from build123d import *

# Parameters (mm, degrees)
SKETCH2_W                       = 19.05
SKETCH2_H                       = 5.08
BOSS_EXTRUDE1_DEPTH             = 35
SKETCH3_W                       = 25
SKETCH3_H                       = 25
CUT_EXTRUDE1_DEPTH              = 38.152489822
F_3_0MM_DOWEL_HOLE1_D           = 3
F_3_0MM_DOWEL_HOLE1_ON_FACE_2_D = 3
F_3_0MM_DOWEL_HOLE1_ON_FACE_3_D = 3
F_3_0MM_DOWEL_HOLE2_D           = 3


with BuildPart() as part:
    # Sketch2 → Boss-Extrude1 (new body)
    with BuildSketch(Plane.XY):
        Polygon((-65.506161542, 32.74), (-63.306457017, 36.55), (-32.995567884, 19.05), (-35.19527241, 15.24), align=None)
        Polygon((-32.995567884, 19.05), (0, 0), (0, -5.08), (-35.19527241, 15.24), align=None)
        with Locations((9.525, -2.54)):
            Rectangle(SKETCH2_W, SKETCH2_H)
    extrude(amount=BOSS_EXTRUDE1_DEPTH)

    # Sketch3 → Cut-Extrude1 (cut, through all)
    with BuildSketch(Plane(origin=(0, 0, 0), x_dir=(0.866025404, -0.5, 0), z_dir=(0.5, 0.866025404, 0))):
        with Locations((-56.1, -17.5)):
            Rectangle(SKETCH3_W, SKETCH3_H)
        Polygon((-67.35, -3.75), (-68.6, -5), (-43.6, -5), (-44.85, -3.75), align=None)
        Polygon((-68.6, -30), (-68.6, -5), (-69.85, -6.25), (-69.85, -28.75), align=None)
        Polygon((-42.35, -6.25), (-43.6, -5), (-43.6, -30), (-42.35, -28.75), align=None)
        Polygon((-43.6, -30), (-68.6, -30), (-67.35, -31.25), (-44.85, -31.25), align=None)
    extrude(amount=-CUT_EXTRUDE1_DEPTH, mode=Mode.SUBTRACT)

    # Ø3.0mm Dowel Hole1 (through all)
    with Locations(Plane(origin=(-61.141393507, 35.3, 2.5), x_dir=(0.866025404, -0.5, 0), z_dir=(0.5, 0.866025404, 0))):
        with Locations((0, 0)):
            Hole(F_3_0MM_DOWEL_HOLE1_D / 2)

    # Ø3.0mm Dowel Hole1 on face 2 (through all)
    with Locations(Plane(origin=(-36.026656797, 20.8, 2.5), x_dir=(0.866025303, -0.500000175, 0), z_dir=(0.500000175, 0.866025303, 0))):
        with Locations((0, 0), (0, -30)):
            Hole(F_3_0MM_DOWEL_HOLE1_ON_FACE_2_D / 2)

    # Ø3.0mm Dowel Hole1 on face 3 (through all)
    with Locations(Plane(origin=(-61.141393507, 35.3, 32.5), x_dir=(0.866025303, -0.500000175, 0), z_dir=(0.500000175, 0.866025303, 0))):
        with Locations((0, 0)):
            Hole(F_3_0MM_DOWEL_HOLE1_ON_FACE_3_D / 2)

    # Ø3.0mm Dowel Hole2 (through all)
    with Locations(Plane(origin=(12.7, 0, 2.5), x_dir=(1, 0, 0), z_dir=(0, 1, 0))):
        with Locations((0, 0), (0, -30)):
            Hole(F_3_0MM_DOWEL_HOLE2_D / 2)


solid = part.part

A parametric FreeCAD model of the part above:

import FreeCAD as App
import Part
import Sketcher
from FreeCAD import Vector
Q = App.Units.Quantity


def add_polygon(sketch, points):
    """Adds a closed chain of lines whose ends are joined by coincident constraints."""
    first, n = sketch.GeometryCount, len(points)
    for a, b in zip(points, points[1:] + points[:1]):
        sketch.addGeometry(Part.LineSegment(App.Vector(*a, 0), App.Vector(*b, 0)), False)
    for i in range(n):
        sketch.addConstraint(Sketcher.Constraint("Coincident", first + i, 2, first + (i + 1) % n, 1))

doc = App.newDocument("Part")
body = doc.addObject("PartDesign::Body", "Body")

# Sketch on XY plane
sketch1 = body.newObject("Sketcher::SketchObject", "Sketch")
sketch1.AttachmentSupport = (doc.getObject("XY_Plane"), [""])
sketch1.MapMode = "FlatFace"
add_polygon(sketch1, [(-63.3, 36.5), (-65.5, 32.7), (-35.2, 15.2), (0, -5.1), (19.1, -5.1), (19.1, 0), (0, 0), (-33, 19.1)])  # lines 0-7
sketch1.addConstraint([
    Sketcher.Constraint("Horizontal", 3),
    Sketcher.Constraint("Vertical", 4),
    Sketcher.Constraint("Horizontal", 5),
    Sketcher.Constraint("Coincident", 5, 2, -1, 1),
    Sketcher.Constraint("PointOnObject", 2, 2, -2),
    Sketcher.Constraint("Perpendicular", 0, 1),
    Sketcher.Constraint("Parallel", 1, 2),
    Sketcher.Constraint("Parallel", 2, 6),
    Sketcher.Constraint("Parallel", 6, 7),
    Sketcher.Constraint("Equal", 1, 7),
    Sketcher.Constraint("DistanceY", 4, 1, 4, 2, Q("0.2 in")),
    Sketcher.Constraint("Angle", 0, Q("-120 deg")),
    Sketcher.Constraint("Distance", 2, Q("1.6 in")),
    Sketcher.Constraint("DistanceX", 3, 1, 3, 2, Q("0.75 in")),
    Sketcher.Constraint("Distance", 1, Q("35 mm")),
])
pad1 = body.newObject("PartDesign::Pad", "Pad")
pad1.Profile = sketch1
pad1.Length = 35

# Sketch on an angled plane
sketch2 = body.newObject("Sketcher::SketchObject", "Sketch001")
sketch2.Placement = App.Placement(Vector(0, 0, 0), App.Rotation(Vector(0.866025404, -0.5, 0), Vector(0, 0, -1), Vector(0.5, 0.866025404, 0), "ZXY"))
add_polygon(sketch2, [(-42.4, -28.8), (-42.4, -6.3), (-44.9, -3.8), (-67.4, -3.8), (-69.9, -6.3), (-69.9, -28.8), (-67.4, -31.3), (-44.9, -31.3)])  # lines 0-7
sketch2.addConstraint([
    Sketcher.Constraint("Vertical", 0),
    Sketcher.Constraint("Horizontal", 2),
    Sketcher.Constraint("Vertical", 4),
    Sketcher.Constraint("Horizontal", 6),
    Sketcher.Constraint("Perpendicular", 1, 3),
    Sketcher.Constraint("Perpendicular", 3, 5),
    Sketcher.Constraint("Perpendicular", 5, 7),
    Sketcher.Constraint("Horizontal", 0, 2, 3, 2),
    Sketcher.Constraint("Horizontal", 4, 2, 7, 2),
    Sketcher.Constraint("Vertical", 2, 2, 5, 2),
    Sketcher.Constraint("Vertical", 1, 2, 6, 2),
    Sketcher.Constraint("Equal", 6, 0),
    Sketcher.Constraint("DistanceX", 3, 2, -1, 1, Q("2.75 in")),
    Sketcher.Constraint("DistanceX", 2, 2, 2, 1, Q("22.5 mm")),
    Sketcher.Constraint("DistanceX", 0, 2, -1, 1, Q("42.35 mm")),
    Sketcher.Constraint("DistanceY", 0, 2, -1, 1, Q("6.25 mm")),
])
pocket1 = body.newObject("PartDesign::Pocket", "Pocket")
pocket1.Profile = sketch2
pocket1.Type = "ThroughAll"

# Sketch on an angled plane
sketch3 = body.newObject("Sketcher::SketchObject", "Sketch002")
sketch3.Placement = App.Placement(Vector(0, 0, 0), App.Rotation(Vector(0.866025404, -0.5, 0), Vector(0, 0, -1), Vector(0.5, 0.866025404, 0), "ZXY"))
sketch3.addGeometry(Part.Circle(Vector(-70.6, -2.5, 0), Vector(0, 0, 1), 1.5), False)
sketch3.addConstraint([
    Sketcher.Constraint("Diameter", 0, Q("3 mm")),
    Sketcher.Constraint("DistanceX", 0, 3, -1, 1, Q("70.6 mm")),
    Sketcher.Constraint("DistanceY", 0, 3, -1, 1, Q("2.5 mm")),
])
doc.recompute()
hole = body.newObject("PartDesign::Hole", "Hole")
hole.Profile = sketch3
hole.ThreadType = "None"
hole.Diameter = 3
hole.DepthType = "ThroughAll"

# Sketch on an angled plane
sketch4 = body.newObject("Sketcher::SketchObject", "Sketch003")
sketch4.Placement = App.Placement(Vector(-0.000004, -0.000007, 0), App.Rotation(Vector(0.866025303, -0.500000175, 0), Vector(0, 0, -1), Vector(0.500000175, 0.866025303, 0), "ZXY"))
sketch4.addGeometry([
    Part.Circle(Vector(-41.6, -2.5, 0), Vector(0, 0, 1), 1.5),
    Part.Circle(Vector(-41.6, -32.5, 0), Vector(0, 0, 1), 1.5),
], False)
sketch4.addConstraint([
    Sketcher.Constraint("Equal", 0, 1),
    Sketcher.Constraint("Vertical", 0, 3, 1, 3),
    Sketcher.Constraint("Diameter", 0, Q("3 mm")),
    Sketcher.Constraint("DistanceX", 0, 3, -1, 1, Q("41.6 mm")),
    Sketcher.Constraint("DistanceY", 0, 3, -1, 1, Q("2.5 mm")),
    Sketcher.Constraint("DistanceY", 1, 3, -1, 1, Q("32.5 mm")),
])
doc.recompute()
hole2 = body.newObject("PartDesign::Hole", "Hole001")
hole2.Profile = sketch4
hole2.ThreadType = "None"
hole2.Diameter = 3
hole2.DepthType = "ThroughAll"

# Sketch on an angled plane
sketch5 = body.newObject("Sketcher::SketchObject", "Sketch004")
sketch5.Placement = App.Placement(Vector(-0.000007, -0.000012, 0), App.Rotation(Vector(0.866025303, -0.500000175, 0), Vector(0, 0, -1), Vector(0.500000175, 0.866025303, 0), "ZXY"))
sketch5.addGeometry(Part.Circle(Vector(-70.6, -32.5, 0), Vector(0, 0, 1), 1.5), False)
sketch5.addConstraint([
    Sketcher.Constraint("Diameter", 0, Q("3 mm")),
    Sketcher.Constraint("DistanceX", 0, 3, -1, 1, Q("70.6 mm")),
    Sketcher.Constraint("DistanceY", 0, 3, -1, 1, Q("32.5 mm")),
])
doc.recompute()
hole3 = body.newObject("PartDesign::Hole", "Hole002")
hole3.Profile = sketch5
hole3.ThreadType = "None"
hole3.Diameter = 3
hole3.DepthType = "ThroughAll"

# Sketch on XZ plane
sketch6 = body.newObject("Sketcher::SketchObject", "Sketch005")
sketch6.AttachmentSupport = (doc.getObject("XZ_Plane"), [""])
sketch6.MapMode = "FlatFace"
sketch6.addGeometry([
    Part.Circle(Vector(12.7, 2.5, 0), Vector(0, 0, 1), 1.5),
    Part.Circle(Vector(12.7, 32.5, 0), Vector(0, 0, 1), 1.5),
], False)
sketch6.addConstraint([
    Sketcher.Constraint("Equal", 0, 1),
    Sketcher.Constraint("Vertical", 0, 3, 1, 3),
    Sketcher.Constraint("DistanceX", -1, 1, 0, 3, Q("0.5 in")),
    Sketcher.Constraint("Diameter", 0, Q("3 mm")),
    Sketcher.Constraint("DistanceY", -1, 1, 0, 3, Q("2.5 mm")),
    Sketcher.Constraint("DistanceY", -1, 1, 1, 3, Q("32.5 mm")),
])
doc.recompute()
hole4 = body.newObject("PartDesign::Hole", "Hole003")
hole4.Profile = sketch6
hole4.ThreadType = "None"
hole4.Diameter = 3
hole4.DepthType = "ThroughAll"
hole4.Reversed = True

doc.recompute()
